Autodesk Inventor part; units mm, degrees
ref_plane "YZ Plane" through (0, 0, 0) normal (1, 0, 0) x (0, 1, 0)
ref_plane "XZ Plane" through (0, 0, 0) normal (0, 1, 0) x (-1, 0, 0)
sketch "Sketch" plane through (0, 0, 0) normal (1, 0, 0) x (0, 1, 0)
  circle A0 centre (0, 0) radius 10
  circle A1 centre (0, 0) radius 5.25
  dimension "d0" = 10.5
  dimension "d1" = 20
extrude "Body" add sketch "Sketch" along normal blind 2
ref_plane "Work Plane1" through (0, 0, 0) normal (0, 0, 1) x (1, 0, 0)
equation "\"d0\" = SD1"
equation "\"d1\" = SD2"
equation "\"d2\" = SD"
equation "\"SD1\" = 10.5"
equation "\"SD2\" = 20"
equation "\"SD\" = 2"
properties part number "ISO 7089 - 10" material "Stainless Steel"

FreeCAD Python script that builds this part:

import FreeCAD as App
import Part
import Sketcher

V = App.Vector
Q = App.Units.Quantity

doc = App.newDocument("Part")
params = doc.addObject("Spreadsheet::Sheet", "Params")
for row, (alias, value) in enumerate([
    ("sketch1_diameter", "20 mm"),
    ("sketch1_diameter2", "10.5 mm"),
    ("pad1_length", "2 mm"),
], start=1):
    params.set(f"A{row}", alias)
    params.set(f"B{row}", "=" + value)
    params.setAlias(f"B{row}", alias)

body = doc.addObject("PartDesign::Body", "Body")

sketch1 = doc.addObject("Sketcher::SketchObject", "Sketch")
body.addObject(sketch1)
sketch1.AttachmentSupport = (doc.YZ_Plane, [""])
sketch1.MapMode = "FlatFace"
sketch1.addGeometry(Part.Circle(V(0, 0, 0), V(0, 0, 1), 10), False)
sketch1.addGeometry(Part.Circle(V(0, 0, 0), V(0, 0, 1), 5), False)
sketch1.addConstraint(Sketcher.Constraint("Coincident", 0, 3, -1, 1))
sketch1.addConstraint(Sketcher.Constraint("Coincident", 1, 3, -1, 1))
sketch1.addConstraint(Sketcher.Constraint("Diameter", 0, Q("20 mm")))
sketch1.addConstraint(Sketcher.Constraint("Diameter", 1, Q("10.5 mm")))
sketch1.setExpression("Constraints[2]", "Params.sketch1_diameter")
sketch1.setExpression("Constraints[3]", "Params.sketch1_diameter2")
pad1 = doc.addObject("PartDesign::Pad", "Pad")
body.addObject(pad1)
pad1.Profile = sketch1
pad1.setExpression("Length", "Params.pad1_length")

doc.recompute()
